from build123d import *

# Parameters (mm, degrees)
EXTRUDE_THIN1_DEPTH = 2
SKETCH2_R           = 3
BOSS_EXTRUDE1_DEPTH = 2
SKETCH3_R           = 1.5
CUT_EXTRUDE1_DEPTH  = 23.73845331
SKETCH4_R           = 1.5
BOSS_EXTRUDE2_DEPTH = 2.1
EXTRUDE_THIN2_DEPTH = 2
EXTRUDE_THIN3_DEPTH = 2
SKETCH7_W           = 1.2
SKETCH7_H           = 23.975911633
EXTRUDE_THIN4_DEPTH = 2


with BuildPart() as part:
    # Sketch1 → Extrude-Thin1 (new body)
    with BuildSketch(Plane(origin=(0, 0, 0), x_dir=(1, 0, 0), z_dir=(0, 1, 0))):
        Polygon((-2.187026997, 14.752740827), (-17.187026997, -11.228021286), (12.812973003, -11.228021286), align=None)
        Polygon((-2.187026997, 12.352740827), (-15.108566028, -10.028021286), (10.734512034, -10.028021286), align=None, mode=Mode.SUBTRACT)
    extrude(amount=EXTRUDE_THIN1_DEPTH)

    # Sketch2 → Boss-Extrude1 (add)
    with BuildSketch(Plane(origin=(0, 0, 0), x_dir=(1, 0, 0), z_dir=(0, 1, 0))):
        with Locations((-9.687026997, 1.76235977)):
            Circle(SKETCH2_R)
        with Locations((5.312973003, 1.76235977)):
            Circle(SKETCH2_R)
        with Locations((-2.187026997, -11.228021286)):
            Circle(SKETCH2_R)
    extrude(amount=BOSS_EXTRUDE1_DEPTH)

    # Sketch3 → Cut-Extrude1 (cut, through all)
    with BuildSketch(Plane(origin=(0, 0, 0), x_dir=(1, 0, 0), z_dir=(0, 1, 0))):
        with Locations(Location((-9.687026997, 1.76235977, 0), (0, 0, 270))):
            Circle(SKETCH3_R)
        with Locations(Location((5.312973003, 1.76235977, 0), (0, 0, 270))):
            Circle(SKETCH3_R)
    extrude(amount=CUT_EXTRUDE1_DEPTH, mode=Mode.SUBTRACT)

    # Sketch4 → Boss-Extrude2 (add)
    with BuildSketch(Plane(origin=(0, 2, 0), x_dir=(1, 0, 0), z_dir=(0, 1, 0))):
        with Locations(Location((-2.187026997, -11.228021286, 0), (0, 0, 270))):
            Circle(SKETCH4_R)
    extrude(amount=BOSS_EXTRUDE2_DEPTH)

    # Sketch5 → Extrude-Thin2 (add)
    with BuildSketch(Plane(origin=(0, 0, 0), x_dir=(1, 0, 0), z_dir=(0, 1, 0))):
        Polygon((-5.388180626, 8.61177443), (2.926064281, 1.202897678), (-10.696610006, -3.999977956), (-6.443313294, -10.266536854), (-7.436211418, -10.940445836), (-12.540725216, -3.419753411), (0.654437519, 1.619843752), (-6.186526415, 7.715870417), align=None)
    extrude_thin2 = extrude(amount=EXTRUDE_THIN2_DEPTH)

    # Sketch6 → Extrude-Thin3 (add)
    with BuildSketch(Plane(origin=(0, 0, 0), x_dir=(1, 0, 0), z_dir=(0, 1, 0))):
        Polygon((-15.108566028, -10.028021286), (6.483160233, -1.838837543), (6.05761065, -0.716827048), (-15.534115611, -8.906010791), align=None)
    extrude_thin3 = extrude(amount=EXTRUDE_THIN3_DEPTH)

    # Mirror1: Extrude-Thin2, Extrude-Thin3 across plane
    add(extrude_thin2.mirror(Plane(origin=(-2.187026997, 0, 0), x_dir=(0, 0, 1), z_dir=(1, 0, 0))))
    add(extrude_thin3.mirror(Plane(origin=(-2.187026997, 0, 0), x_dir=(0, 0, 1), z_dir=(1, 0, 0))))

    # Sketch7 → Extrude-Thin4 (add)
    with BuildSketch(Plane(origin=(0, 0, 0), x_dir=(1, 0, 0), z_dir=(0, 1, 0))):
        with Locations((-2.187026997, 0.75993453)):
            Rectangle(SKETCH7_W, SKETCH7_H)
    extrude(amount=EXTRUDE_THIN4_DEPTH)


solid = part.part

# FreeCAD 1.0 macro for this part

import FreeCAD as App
import Part
import Sketcher
Q = App.Units.Quantity

doc = App.newDocument("Part")
body = doc.addObject("PartDesign::Body", "Body")

# Sketch on XZ plane
sketch1 = doc.addObject("Sketcher::SketchObject", "Sketch")
body.addObject(sketch1)
sketch1.AttachmentSupport = (doc.XZ_Plane, [""])
sketch1.MapMode = "FlatFace"
sketch1.addGeometry([
    Part.LineSegment(App.Vector(-2, -15, 0), App.Vector(-17, 11, 0)),  # 0
    Part.LineSegment(App.Vector(-17, 11, 0), App.Vector(13, 11, 0)),  # 1
    Part.LineSegment(App.Vector(13, 11, 0), App.Vector(-2, -15, 0)),  # 2
    Part.LineSegment(App.Vector(-15, 10, 0), App.Vector(-2, -12, 0)),  # 3
    Part.LineSegment(App.Vector(-2, -12, 0), App.Vector(11, 10, 0)),  # 4
    Part.LineSegment(App.Vector(11, 10, 0), App.Vector(-15, 10, 0)),  # 5
], False)
sketch1.addConstraint([
    Sketcher.Constraint("Coincident", 0, 2, 1, 1),
    Sketcher.Constraint("Coincident", 1, 2, 2, 1),
    Sketcher.Constraint("Coincident", 2, 2, 0, 1),
    Sketcher.Constraint("Coincident", 3, 2, 4, 1),
    Sketcher.Constraint("Coincident", 4, 2, 5, 1),
    Sketcher.Constraint("Coincident", 5, 2, 3, 1),
    Sketcher.Constraint("Horizontal", 1),
    Sketcher.Constraint("Horizontal", 5),
    Sketcher.Constraint("Parallel", 0, 3),
    Sketcher.Constraint("Parallel", 2, 4),
    Sketcher.Constraint("Vertical", 2, 2, 3, 2),
    Sketcher.Constraint("Equal", 0, 2),
    Sketcher.Constraint("DistanceX", 1, 1, 1, 2, Q("30 mm")),
    Sketcher.Constraint("Angle", 0, Q("120 deg")),
    Sketcher.Constraint("DistanceY", 2, 2, 3, 2, Q("2.4 mm")),
    Sketcher.Constraint("DistanceY", 4, 2, 1, 2, Q("1.2 mm")),
    Sketcher.Constraint("DistanceY", -1, 1, 0, 2, Q("11.228021 mm")),
    Sketcher.Constraint("DistanceX", 0, 2, -1, 1, Q("17.187027 mm")),
])
pad1 = doc.addObject("PartDesign::Pad", "Pad")
body.addObject(pad1)
pad1.Profile = sketch1
pad1.Length = 2
pad1.Reversed = True

# Sketch on XZ plane
sketch2 = doc.addObject("Sketcher::SketchObject", "Sketch001")
body.addObject(sketch2)
sketch2.AttachmentSupport = (doc.XZ_Plane, [""])
sketch2.MapMode = "FlatFace"
sketch2.addGeometry([
    Part.Circle(App.Vector(-9.7, -1.8, 0), App.Vector(0, 0, 1), 3),
    Part.Circle(App.Vector(5.3, -1.8, 0), App.Vector(0, 0, 1), 3),
    Part.Circle(App.Vector(-2.2, 11.2, 0), App.Vector(0, 0, 1), 3),
], False)
sketch2.addConstraint([
    Sketcher.Constraint("Equal", 0, 1),
    Sketcher.Constraint("Equal", 1, 2),
    Sketcher.Constraint("Horizontal", 0, 3, 1, 3),
    Sketcher.Constraint("Diameter", 0, Q("6 mm")),
    Sketcher.Constraint("DistanceX", 0, 3, 1, 3, Q("15 mm")),
    Sketcher.Constraint("DistanceX", 0, 3, 2, 3, Q("7.5 mm")),
    Sketcher.Constraint("DistanceY", 0, 3, -1, 1, Q("1.76236 mm")),
    Sketcher.Constraint("DistanceY", -1, 1, 2, 3, Q("11.228021 mm")),
    Sketcher.Constraint("DistanceX", 0, 3, -1, 1, Q("9.687027 mm")),
])
pad2 = doc.addObject("PartDesign::Pad", "Pad001")
body.addObject(pad2)
pad2.Profile = sketch2
pad2.Length = 2
pad2.Reversed = True

# Sketch on XZ plane
sketch3 = doc.addObject("Sketcher::SketchObject", "Sketch002")
body.addObject(sketch3)
sketch3.AttachmentSupport = (doc.XZ_Plane, [""])
sketch3.MapMode = "FlatFace"
sketch3.addGeometry([
    Part.Circle(App.Vector(-9.7, -1.8, 0), App.Vector(0, 0, 1), 1.5),
    Part.Circle(App.Vector(5.3, -1.8, 0), App.Vector(0, 0, 1), 1.5),
], False)
sketch3.addConstraint([
    Sketcher.Constraint("Equal", 0, 1),
    Sketcher.Constraint("Horizontal", 0, 3, 1, 3),
    Sketcher.Constraint("Diameter", 0, Q("3 mm")),
    Sketcher.Constraint("DistanceX", 0, 3, 1, 3, Q("15 mm")),
    Sketcher.Constraint("DistanceY", 0, 3, -1, 1, Q("1.76236 mm")),
    Sketcher.Constraint("DistanceX", 0, 3, -1, 1, Q("9.687027 mm")),
])
pocket1 = doc.addObject("PartDesign::Pocket", "Pocket")
body.addObject(pocket1)
pocket1.Profile = sketch3
pocket1.Type = "ThroughAll"

# Sketch on XZ plane
sketch4 = doc.addObject("Sketcher::SketchObject", "Sketch003")
body.addObject(sketch4)
sketch4.AttachmentSupport = (doc.XZ_Plane, [""])
sketch4.MapMode = "FlatFace"
sketch4.AttachmentOffset = App.Placement(App.Vector(0, 0, -2), App.Rotation())
sketch4.addGeometry(Part.Circle(App.Vector(-2.2, 11.2, 0), App.Vector(0, 0, 1), 1.5), False)
sketch4.addConstraint([
    Sketcher.Constraint("Diameter", 0, Q("3 mm")),
    Sketcher.Constraint("DistanceY", -1, 1, 0, 3, Q("11.228021 mm")),
    Sketcher.Constraint("DistanceX", 0, 3, -1, 1, Q("2.187027 mm")),
])
pad3 = doc.addObject("PartDesign::Pad", "Pad002")
body.addObject(pad3)
pad3.Profile = sketch4
pad3.Length = 2.1
pad3.Reversed = True

# Sketch on XZ plane
sketch5 = doc.addObject("Sketcher::SketchObject", "Sketch004")
body.addObject(sketch5)
sketch5.AttachmentSupport = (doc.XZ_Plane, [""])
sketch5.MapMode = "FlatFace"
sketch5.addGeometry([
    Part.LineSegment(App.Vector(2.9, -1.2, 0), App.Vector(-5.4, -8.6, 0)),  # 0
    Part.LineSegment(App.Vector(-5.4, -8.6, 0), App.Vector(-6.2, -7.7, 0)),  # 1
    Part.LineSegment(App.Vector(-6.2, -7.7, 0), App.Vector(0.7, -1.6, 0)),  # 2
    Part.LineSegment(App.Vector(0.7, -1.6, 0), App.Vector(-12.5, 3.4, 0)),  # 3
    Part.LineSegment(App.Vector(-12.5, 3.4, 0), App.Vector(-7.4, 10.9, 0)),  # 4
    Part.LineSegment(App.Vector(-7.4, 10.9, 0), App.Vector(-6.4, 10.3, 0)),  # 5
    Part.LineSegment(App.Vector(-6.4, 10.3, 0), App.Vector(-10.7, 4, 0)),  # 6
    Part.LineSegment(App.Vector(-10.7, 4, 0), App.Vector(2.9, -1.2, 0)),  # 7
], False)
sketch5.addConstraint([
    Sketcher.Constraint("Coincident", 0, 2, 1, 1),
    Sketcher.Constraint("Coincident", 1, 2, 2, 1),
    Sketcher.Constraint("Coincident", 2, 2, 3, 1),
    Sketcher.Constraint("Coincident", 3, 2, 4, 1),
    Sketcher.Constraint("Coincident", 4, 2, 5, 1),
    Sketcher.Constraint("Coincident", 5, 2, 6, 1),
    Sketcher.Constraint("Coincident", 6, 2, 7, 1),
    Sketcher.Constraint("Coincident", 7, 2, 0, 1),
    Sketcher.Constraint("Perpendicular", 0, 1),
    Sketcher.Constraint("Perpendicular", 1, 2),
    Sketcher.Constraint("Perpendicular", 4, 5),
    Sketcher.Constraint("Perpendicular", 5, 6),
    Sketcher.Constraint("Parallel", 3, 7),
    Sketcher.Constraint("Equal", 1, 5),
    Sketcher.Constraint("Distance", 1, Q("1.2 mm")),
    Sketcher.Constraint("DistanceX", 3, 2, 1, 2, Q("6.354199 mm")),
    Sketcher.Constraint("DistanceX", 4, 2, 5, 2, Q("0.992898 mm")),
    Sketcher.Constraint("DistanceX", 6, 2, 4, 2, Q("3.260399 mm")),
    Sketcher.Constraint("DistanceX", 0, 2, -1, 1, Q("5.388181 mm")),
    Sketcher.Constraint("DistanceY", 1, 2, -1, 1, Q("7.71587 mm")),
    Sketcher.Constraint("DistanceX", 4, 2, -1, 1, Q("7.436211 mm")),
    Sketcher.Constraint("DistanceX", 0, 2, 2, 2, Q("6.042618 mm")),
    Sketcher.Constraint("DistanceY", 0, 2, 2, 2, Q("6.991931 mm")),
    Sketcher.Constraint("DistanceY", 2, 2, 4, 2, Q("12.56029 mm")),
])
pad4 = doc.addObject("PartDesign::Pad", "Pad003")
body.addObject(pad4)
pad4.Profile = sketch5
pad4.Length = 2
pad4.Reversed = True

# Sketch on XZ plane
sketch6 = doc.addObject("Sketcher::SketchObject", "Sketch005")
body.addObject(sketch6)
sketch6.AttachmentSupport = (doc.XZ_Plane, [""])
sketch6.MapMode = "FlatFace"
sketch6.addGeometry([
    Part.LineSegment(App.Vector(-15.1, 10, 0), App.Vector(6.5, 1.8, 0)),
    Part.LineSegment(App.Vector(6.5, 1.8, 0), App.Vector(6.1, 0.7, 0)),
    Part.LineSegment(App.Vector(6.1, 0.7, 0), App.Vector(-15.5, 8.9, 0)),
    Part.LineSegment(App.Vector(-15.5, 8.9, 0), App.Vector(-15.1, 10, 0)),
], False)
sketch6.addConstraint([
    Sketcher.Constraint("Coincident", 0, 2, 1, 1),
    Sketcher.Constraint("Coincident", 1, 2, 2, 1),
    Sketcher.Constraint("Coincident", 2, 2, 3, 1),
    Sketcher.Constraint("Coincident", 3, 2, 0, 1),
    Sketcher.Constraint("Perpendicular", 0, 1),
    Sketcher.Constraint("Perpendicular", 1, 2),
    Sketcher.Constraint("Perpendicular", 2, 3),
    Sketcher.Constraint("Distance", 1, Q("1.2 mm")),
    Sketcher.Constraint("Distance", 0, Q("23.092539 mm")),
    Sketcher.Constraint("DistanceX", -1, 1, 0, 2, Q("6.48316 mm")),
    Sketcher.Constraint("DistanceX", -1, 1, 1, 2, Q("6.057611 mm")),
    Sketcher.Constraint("DistanceY", -1, 1, 2, 2, Q("8.906011 mm")),
])
pad5 = doc.addObject("PartDesign::Pad", "Pad004")
body.addObject(pad5)
pad5.Profile = sketch6
pad5.Length = 2
pad5.Reversed = True
doc.recompute()

datumplane = doc.addObject("PartDesign::Plane", "DatumPlane")
body.addObject(datumplane)
datumplane.AttachmentSupport = (doc.YZ_Plane, [""])
datumplane.MapMode = "FlatFace"
datumplane.AttachmentOffset = App.Placement(App.Vector(0, 0, -2.187027), App.Rotation())
mirrored = doc.addObject("PartDesign::Mirrored", "Mirrored")
body.addObject(mirrored)
mirrored.Originals = [pad4, pad5]
mirrored.MirrorPlane = (datumplane, [""])
body.Tip = mirrored

# Sketch on XZ plane
sketch7 = doc.addObject("Sketcher::SketchObject", "Sketch006")
body.addObject(sketch7)
sketch7.AttachmentSupport = (doc.XZ_Plane, [""])
sketch7.MapMode = "FlatFace"
sketch7.addGeometry([
    Part.LineSegment(App.Vector(-2.8, -12.7, 0), App.Vector(-2.8, 11.2, 0)),
    Part.LineSegment(App.Vector(-2.8, 11.2, 0), App.Vector(-1.6, 11.2, 0)),
    Part.LineSegment(App.Vector(-1.6, 11.2, 0), App.Vector(-1.6, -12.7, 0)),
    Part.LineSegment(App.Vector(-1.6, -12.7, 0), App.Vector(-2.8, -12.7, 0)),
], False)
sketch7.addConstraint([
    Sketcher.Constraint("Coincident", 0, 2, 1, 1),
    Sketcher.Constraint("Coincident", 1, 2, 2, 1),
    Sketcher.Constraint("Coincident", 2, 2, 3, 1),
    Sketcher.Constraint("Coincident", 3, 2, 0, 1),
    Sketcher.Constraint("Vertical", 0),
    Sketcher.Constraint("Horizontal", 1),
    Sketcher.Constraint("Vertical", 2),
    Sketcher.Constraint("Horizontal", 3),
    Sketcher.Constraint("DistanceX", 1, 1, 1, 2, Q("1.2 mm")),
    Sketcher.Constraint("DistanceY", 0, 1, 0, 2, Q("23.975912 mm")),
    Sketcher.Constraint("DistanceY", -1, 1, 0, 2, Q("11.228021 mm")),
    Sketcher.Constraint("DistanceX", 0, 2, -1, 1, Q("2.787027 mm")),
])
pad6 = doc.addObject("PartDesign::Pad", "Pad005")
body.addObject(pad6)
pad6.Profile = sketch7
pad6.Length = 2
pad6.Reversed = True

doc.recompute()
